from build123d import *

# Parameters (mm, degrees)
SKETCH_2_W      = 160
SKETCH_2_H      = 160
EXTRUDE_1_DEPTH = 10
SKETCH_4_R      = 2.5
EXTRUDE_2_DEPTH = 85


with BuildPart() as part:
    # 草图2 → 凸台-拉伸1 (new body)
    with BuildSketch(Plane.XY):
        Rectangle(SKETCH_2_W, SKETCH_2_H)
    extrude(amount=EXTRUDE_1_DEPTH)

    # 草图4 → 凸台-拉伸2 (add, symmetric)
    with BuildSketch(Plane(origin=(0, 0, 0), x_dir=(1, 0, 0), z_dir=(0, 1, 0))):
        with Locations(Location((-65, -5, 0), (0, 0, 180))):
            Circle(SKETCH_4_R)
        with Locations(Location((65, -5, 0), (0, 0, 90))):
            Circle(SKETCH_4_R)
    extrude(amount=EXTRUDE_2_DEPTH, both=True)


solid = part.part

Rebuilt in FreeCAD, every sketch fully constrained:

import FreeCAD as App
import Part
import Sketcher
from FreeCAD import Vector
Q = App.Units.Quantity

doc = App.newDocument("Part")
body = doc.addObject("PartDesign::Body", "Body")

sketch1 = body.newObject("Sketcher::SketchObject", "Sketch")
sketch1.AttachmentSupport = (doc.getObject("XY_Plane"), [""])
sketch1.MapMode = "FlatFace"
sketch1.addGeometry(Part.LineSegment(Vector(-80, 80, 0), Vector(-80, -80, 0)), False)
sketch1.addGeometry(Part.LineSegment(Vector(-80, -80, 0), Vector(80, -80, 0)), False)
sketch1.addGeometry(Part.LineSegment(Vector(80, -80, 0), Vector(80, 80, 0)), False)
sketch1.addGeometry(Part.LineSegment(Vector(80, 80, 0), Vector(-80, 80, 0)), False)
sketch1.addConstraint(Sketcher.Constraint("Coincident", 0, 2, 1, 1))
sketch1.addConstraint(Sketcher.Constraint("Coincident", 1, 2, 2, 1))
sketch1.addConstraint(Sketcher.Constraint("Coincident", 2, 2, 3, 1))
sketch1.addConstraint(Sketcher.Constraint("Coincident", 3, 2, 0, 1))
sketch1.addConstraint(Sketcher.Constraint("Vertical", 0))
sketch1.addConstraint(Sketcher.Constraint("Horizontal", 1))
sketch1.addConstraint(Sketcher.Constraint("Vertical", 2))
sketch1.addConstraint(Sketcher.Constraint("Horizontal", 3))
sketch1.addConstraint(Sketcher.Constraint("Symmetric", 0, 2, 2, 2, -1, 1))
sketch1.addConstraint(Sketcher.Constraint("Equal", 3, 0))
sketch1.addConstraint(Sketcher.Constraint("DistanceX", 1, 1, 1, 2, Q("160 mm")))
pad1 = body.newObject("PartDesign::Pad", "Pad")
pad1.Profile = sketch1
pad1.Length = 10

sketch2 = body.newObject("Sketcher::SketchObject", "Sketch001")
sketch2.AttachmentSupport = (doc.getObject("XZ_Plane"), [""])
sketch2.MapMode = "FlatFace"
sketch2.addGeometry(Part.Circle(Vector(-65, 5, 0), Vector(0, 0, 1), 2.5), False)
sketch2.addGeometry(Part.Circle(Vector(65, 5, 0), Vector(0, 0, 1), 2.5), False)
sketch2.addConstraint(Sketcher.Constraint("Equal", 0, 1))
sketch2.addConstraint(Sketcher.Constraint("Symmetric", 0, 3, 1, 3, -2))
sketch2.addConstraint(Sketcher.Constraint("Diameter", 0, Q("5 mm")))
sketch2.addConstraint(Sketcher.Constraint("DistanceX", 0, 3, -1, 1, Q("65 mm")))
sketch2.addConstraint(Sketcher.Constraint("DistanceY", -1, 1, 0, 3, Q("5 mm")))
pad2 = body.newObject("PartDesign::Pad", "Pad001")
pad2.Profile = sketch2
pad2.Length = 170
pad2.Midplane = True

doc.recompute()
